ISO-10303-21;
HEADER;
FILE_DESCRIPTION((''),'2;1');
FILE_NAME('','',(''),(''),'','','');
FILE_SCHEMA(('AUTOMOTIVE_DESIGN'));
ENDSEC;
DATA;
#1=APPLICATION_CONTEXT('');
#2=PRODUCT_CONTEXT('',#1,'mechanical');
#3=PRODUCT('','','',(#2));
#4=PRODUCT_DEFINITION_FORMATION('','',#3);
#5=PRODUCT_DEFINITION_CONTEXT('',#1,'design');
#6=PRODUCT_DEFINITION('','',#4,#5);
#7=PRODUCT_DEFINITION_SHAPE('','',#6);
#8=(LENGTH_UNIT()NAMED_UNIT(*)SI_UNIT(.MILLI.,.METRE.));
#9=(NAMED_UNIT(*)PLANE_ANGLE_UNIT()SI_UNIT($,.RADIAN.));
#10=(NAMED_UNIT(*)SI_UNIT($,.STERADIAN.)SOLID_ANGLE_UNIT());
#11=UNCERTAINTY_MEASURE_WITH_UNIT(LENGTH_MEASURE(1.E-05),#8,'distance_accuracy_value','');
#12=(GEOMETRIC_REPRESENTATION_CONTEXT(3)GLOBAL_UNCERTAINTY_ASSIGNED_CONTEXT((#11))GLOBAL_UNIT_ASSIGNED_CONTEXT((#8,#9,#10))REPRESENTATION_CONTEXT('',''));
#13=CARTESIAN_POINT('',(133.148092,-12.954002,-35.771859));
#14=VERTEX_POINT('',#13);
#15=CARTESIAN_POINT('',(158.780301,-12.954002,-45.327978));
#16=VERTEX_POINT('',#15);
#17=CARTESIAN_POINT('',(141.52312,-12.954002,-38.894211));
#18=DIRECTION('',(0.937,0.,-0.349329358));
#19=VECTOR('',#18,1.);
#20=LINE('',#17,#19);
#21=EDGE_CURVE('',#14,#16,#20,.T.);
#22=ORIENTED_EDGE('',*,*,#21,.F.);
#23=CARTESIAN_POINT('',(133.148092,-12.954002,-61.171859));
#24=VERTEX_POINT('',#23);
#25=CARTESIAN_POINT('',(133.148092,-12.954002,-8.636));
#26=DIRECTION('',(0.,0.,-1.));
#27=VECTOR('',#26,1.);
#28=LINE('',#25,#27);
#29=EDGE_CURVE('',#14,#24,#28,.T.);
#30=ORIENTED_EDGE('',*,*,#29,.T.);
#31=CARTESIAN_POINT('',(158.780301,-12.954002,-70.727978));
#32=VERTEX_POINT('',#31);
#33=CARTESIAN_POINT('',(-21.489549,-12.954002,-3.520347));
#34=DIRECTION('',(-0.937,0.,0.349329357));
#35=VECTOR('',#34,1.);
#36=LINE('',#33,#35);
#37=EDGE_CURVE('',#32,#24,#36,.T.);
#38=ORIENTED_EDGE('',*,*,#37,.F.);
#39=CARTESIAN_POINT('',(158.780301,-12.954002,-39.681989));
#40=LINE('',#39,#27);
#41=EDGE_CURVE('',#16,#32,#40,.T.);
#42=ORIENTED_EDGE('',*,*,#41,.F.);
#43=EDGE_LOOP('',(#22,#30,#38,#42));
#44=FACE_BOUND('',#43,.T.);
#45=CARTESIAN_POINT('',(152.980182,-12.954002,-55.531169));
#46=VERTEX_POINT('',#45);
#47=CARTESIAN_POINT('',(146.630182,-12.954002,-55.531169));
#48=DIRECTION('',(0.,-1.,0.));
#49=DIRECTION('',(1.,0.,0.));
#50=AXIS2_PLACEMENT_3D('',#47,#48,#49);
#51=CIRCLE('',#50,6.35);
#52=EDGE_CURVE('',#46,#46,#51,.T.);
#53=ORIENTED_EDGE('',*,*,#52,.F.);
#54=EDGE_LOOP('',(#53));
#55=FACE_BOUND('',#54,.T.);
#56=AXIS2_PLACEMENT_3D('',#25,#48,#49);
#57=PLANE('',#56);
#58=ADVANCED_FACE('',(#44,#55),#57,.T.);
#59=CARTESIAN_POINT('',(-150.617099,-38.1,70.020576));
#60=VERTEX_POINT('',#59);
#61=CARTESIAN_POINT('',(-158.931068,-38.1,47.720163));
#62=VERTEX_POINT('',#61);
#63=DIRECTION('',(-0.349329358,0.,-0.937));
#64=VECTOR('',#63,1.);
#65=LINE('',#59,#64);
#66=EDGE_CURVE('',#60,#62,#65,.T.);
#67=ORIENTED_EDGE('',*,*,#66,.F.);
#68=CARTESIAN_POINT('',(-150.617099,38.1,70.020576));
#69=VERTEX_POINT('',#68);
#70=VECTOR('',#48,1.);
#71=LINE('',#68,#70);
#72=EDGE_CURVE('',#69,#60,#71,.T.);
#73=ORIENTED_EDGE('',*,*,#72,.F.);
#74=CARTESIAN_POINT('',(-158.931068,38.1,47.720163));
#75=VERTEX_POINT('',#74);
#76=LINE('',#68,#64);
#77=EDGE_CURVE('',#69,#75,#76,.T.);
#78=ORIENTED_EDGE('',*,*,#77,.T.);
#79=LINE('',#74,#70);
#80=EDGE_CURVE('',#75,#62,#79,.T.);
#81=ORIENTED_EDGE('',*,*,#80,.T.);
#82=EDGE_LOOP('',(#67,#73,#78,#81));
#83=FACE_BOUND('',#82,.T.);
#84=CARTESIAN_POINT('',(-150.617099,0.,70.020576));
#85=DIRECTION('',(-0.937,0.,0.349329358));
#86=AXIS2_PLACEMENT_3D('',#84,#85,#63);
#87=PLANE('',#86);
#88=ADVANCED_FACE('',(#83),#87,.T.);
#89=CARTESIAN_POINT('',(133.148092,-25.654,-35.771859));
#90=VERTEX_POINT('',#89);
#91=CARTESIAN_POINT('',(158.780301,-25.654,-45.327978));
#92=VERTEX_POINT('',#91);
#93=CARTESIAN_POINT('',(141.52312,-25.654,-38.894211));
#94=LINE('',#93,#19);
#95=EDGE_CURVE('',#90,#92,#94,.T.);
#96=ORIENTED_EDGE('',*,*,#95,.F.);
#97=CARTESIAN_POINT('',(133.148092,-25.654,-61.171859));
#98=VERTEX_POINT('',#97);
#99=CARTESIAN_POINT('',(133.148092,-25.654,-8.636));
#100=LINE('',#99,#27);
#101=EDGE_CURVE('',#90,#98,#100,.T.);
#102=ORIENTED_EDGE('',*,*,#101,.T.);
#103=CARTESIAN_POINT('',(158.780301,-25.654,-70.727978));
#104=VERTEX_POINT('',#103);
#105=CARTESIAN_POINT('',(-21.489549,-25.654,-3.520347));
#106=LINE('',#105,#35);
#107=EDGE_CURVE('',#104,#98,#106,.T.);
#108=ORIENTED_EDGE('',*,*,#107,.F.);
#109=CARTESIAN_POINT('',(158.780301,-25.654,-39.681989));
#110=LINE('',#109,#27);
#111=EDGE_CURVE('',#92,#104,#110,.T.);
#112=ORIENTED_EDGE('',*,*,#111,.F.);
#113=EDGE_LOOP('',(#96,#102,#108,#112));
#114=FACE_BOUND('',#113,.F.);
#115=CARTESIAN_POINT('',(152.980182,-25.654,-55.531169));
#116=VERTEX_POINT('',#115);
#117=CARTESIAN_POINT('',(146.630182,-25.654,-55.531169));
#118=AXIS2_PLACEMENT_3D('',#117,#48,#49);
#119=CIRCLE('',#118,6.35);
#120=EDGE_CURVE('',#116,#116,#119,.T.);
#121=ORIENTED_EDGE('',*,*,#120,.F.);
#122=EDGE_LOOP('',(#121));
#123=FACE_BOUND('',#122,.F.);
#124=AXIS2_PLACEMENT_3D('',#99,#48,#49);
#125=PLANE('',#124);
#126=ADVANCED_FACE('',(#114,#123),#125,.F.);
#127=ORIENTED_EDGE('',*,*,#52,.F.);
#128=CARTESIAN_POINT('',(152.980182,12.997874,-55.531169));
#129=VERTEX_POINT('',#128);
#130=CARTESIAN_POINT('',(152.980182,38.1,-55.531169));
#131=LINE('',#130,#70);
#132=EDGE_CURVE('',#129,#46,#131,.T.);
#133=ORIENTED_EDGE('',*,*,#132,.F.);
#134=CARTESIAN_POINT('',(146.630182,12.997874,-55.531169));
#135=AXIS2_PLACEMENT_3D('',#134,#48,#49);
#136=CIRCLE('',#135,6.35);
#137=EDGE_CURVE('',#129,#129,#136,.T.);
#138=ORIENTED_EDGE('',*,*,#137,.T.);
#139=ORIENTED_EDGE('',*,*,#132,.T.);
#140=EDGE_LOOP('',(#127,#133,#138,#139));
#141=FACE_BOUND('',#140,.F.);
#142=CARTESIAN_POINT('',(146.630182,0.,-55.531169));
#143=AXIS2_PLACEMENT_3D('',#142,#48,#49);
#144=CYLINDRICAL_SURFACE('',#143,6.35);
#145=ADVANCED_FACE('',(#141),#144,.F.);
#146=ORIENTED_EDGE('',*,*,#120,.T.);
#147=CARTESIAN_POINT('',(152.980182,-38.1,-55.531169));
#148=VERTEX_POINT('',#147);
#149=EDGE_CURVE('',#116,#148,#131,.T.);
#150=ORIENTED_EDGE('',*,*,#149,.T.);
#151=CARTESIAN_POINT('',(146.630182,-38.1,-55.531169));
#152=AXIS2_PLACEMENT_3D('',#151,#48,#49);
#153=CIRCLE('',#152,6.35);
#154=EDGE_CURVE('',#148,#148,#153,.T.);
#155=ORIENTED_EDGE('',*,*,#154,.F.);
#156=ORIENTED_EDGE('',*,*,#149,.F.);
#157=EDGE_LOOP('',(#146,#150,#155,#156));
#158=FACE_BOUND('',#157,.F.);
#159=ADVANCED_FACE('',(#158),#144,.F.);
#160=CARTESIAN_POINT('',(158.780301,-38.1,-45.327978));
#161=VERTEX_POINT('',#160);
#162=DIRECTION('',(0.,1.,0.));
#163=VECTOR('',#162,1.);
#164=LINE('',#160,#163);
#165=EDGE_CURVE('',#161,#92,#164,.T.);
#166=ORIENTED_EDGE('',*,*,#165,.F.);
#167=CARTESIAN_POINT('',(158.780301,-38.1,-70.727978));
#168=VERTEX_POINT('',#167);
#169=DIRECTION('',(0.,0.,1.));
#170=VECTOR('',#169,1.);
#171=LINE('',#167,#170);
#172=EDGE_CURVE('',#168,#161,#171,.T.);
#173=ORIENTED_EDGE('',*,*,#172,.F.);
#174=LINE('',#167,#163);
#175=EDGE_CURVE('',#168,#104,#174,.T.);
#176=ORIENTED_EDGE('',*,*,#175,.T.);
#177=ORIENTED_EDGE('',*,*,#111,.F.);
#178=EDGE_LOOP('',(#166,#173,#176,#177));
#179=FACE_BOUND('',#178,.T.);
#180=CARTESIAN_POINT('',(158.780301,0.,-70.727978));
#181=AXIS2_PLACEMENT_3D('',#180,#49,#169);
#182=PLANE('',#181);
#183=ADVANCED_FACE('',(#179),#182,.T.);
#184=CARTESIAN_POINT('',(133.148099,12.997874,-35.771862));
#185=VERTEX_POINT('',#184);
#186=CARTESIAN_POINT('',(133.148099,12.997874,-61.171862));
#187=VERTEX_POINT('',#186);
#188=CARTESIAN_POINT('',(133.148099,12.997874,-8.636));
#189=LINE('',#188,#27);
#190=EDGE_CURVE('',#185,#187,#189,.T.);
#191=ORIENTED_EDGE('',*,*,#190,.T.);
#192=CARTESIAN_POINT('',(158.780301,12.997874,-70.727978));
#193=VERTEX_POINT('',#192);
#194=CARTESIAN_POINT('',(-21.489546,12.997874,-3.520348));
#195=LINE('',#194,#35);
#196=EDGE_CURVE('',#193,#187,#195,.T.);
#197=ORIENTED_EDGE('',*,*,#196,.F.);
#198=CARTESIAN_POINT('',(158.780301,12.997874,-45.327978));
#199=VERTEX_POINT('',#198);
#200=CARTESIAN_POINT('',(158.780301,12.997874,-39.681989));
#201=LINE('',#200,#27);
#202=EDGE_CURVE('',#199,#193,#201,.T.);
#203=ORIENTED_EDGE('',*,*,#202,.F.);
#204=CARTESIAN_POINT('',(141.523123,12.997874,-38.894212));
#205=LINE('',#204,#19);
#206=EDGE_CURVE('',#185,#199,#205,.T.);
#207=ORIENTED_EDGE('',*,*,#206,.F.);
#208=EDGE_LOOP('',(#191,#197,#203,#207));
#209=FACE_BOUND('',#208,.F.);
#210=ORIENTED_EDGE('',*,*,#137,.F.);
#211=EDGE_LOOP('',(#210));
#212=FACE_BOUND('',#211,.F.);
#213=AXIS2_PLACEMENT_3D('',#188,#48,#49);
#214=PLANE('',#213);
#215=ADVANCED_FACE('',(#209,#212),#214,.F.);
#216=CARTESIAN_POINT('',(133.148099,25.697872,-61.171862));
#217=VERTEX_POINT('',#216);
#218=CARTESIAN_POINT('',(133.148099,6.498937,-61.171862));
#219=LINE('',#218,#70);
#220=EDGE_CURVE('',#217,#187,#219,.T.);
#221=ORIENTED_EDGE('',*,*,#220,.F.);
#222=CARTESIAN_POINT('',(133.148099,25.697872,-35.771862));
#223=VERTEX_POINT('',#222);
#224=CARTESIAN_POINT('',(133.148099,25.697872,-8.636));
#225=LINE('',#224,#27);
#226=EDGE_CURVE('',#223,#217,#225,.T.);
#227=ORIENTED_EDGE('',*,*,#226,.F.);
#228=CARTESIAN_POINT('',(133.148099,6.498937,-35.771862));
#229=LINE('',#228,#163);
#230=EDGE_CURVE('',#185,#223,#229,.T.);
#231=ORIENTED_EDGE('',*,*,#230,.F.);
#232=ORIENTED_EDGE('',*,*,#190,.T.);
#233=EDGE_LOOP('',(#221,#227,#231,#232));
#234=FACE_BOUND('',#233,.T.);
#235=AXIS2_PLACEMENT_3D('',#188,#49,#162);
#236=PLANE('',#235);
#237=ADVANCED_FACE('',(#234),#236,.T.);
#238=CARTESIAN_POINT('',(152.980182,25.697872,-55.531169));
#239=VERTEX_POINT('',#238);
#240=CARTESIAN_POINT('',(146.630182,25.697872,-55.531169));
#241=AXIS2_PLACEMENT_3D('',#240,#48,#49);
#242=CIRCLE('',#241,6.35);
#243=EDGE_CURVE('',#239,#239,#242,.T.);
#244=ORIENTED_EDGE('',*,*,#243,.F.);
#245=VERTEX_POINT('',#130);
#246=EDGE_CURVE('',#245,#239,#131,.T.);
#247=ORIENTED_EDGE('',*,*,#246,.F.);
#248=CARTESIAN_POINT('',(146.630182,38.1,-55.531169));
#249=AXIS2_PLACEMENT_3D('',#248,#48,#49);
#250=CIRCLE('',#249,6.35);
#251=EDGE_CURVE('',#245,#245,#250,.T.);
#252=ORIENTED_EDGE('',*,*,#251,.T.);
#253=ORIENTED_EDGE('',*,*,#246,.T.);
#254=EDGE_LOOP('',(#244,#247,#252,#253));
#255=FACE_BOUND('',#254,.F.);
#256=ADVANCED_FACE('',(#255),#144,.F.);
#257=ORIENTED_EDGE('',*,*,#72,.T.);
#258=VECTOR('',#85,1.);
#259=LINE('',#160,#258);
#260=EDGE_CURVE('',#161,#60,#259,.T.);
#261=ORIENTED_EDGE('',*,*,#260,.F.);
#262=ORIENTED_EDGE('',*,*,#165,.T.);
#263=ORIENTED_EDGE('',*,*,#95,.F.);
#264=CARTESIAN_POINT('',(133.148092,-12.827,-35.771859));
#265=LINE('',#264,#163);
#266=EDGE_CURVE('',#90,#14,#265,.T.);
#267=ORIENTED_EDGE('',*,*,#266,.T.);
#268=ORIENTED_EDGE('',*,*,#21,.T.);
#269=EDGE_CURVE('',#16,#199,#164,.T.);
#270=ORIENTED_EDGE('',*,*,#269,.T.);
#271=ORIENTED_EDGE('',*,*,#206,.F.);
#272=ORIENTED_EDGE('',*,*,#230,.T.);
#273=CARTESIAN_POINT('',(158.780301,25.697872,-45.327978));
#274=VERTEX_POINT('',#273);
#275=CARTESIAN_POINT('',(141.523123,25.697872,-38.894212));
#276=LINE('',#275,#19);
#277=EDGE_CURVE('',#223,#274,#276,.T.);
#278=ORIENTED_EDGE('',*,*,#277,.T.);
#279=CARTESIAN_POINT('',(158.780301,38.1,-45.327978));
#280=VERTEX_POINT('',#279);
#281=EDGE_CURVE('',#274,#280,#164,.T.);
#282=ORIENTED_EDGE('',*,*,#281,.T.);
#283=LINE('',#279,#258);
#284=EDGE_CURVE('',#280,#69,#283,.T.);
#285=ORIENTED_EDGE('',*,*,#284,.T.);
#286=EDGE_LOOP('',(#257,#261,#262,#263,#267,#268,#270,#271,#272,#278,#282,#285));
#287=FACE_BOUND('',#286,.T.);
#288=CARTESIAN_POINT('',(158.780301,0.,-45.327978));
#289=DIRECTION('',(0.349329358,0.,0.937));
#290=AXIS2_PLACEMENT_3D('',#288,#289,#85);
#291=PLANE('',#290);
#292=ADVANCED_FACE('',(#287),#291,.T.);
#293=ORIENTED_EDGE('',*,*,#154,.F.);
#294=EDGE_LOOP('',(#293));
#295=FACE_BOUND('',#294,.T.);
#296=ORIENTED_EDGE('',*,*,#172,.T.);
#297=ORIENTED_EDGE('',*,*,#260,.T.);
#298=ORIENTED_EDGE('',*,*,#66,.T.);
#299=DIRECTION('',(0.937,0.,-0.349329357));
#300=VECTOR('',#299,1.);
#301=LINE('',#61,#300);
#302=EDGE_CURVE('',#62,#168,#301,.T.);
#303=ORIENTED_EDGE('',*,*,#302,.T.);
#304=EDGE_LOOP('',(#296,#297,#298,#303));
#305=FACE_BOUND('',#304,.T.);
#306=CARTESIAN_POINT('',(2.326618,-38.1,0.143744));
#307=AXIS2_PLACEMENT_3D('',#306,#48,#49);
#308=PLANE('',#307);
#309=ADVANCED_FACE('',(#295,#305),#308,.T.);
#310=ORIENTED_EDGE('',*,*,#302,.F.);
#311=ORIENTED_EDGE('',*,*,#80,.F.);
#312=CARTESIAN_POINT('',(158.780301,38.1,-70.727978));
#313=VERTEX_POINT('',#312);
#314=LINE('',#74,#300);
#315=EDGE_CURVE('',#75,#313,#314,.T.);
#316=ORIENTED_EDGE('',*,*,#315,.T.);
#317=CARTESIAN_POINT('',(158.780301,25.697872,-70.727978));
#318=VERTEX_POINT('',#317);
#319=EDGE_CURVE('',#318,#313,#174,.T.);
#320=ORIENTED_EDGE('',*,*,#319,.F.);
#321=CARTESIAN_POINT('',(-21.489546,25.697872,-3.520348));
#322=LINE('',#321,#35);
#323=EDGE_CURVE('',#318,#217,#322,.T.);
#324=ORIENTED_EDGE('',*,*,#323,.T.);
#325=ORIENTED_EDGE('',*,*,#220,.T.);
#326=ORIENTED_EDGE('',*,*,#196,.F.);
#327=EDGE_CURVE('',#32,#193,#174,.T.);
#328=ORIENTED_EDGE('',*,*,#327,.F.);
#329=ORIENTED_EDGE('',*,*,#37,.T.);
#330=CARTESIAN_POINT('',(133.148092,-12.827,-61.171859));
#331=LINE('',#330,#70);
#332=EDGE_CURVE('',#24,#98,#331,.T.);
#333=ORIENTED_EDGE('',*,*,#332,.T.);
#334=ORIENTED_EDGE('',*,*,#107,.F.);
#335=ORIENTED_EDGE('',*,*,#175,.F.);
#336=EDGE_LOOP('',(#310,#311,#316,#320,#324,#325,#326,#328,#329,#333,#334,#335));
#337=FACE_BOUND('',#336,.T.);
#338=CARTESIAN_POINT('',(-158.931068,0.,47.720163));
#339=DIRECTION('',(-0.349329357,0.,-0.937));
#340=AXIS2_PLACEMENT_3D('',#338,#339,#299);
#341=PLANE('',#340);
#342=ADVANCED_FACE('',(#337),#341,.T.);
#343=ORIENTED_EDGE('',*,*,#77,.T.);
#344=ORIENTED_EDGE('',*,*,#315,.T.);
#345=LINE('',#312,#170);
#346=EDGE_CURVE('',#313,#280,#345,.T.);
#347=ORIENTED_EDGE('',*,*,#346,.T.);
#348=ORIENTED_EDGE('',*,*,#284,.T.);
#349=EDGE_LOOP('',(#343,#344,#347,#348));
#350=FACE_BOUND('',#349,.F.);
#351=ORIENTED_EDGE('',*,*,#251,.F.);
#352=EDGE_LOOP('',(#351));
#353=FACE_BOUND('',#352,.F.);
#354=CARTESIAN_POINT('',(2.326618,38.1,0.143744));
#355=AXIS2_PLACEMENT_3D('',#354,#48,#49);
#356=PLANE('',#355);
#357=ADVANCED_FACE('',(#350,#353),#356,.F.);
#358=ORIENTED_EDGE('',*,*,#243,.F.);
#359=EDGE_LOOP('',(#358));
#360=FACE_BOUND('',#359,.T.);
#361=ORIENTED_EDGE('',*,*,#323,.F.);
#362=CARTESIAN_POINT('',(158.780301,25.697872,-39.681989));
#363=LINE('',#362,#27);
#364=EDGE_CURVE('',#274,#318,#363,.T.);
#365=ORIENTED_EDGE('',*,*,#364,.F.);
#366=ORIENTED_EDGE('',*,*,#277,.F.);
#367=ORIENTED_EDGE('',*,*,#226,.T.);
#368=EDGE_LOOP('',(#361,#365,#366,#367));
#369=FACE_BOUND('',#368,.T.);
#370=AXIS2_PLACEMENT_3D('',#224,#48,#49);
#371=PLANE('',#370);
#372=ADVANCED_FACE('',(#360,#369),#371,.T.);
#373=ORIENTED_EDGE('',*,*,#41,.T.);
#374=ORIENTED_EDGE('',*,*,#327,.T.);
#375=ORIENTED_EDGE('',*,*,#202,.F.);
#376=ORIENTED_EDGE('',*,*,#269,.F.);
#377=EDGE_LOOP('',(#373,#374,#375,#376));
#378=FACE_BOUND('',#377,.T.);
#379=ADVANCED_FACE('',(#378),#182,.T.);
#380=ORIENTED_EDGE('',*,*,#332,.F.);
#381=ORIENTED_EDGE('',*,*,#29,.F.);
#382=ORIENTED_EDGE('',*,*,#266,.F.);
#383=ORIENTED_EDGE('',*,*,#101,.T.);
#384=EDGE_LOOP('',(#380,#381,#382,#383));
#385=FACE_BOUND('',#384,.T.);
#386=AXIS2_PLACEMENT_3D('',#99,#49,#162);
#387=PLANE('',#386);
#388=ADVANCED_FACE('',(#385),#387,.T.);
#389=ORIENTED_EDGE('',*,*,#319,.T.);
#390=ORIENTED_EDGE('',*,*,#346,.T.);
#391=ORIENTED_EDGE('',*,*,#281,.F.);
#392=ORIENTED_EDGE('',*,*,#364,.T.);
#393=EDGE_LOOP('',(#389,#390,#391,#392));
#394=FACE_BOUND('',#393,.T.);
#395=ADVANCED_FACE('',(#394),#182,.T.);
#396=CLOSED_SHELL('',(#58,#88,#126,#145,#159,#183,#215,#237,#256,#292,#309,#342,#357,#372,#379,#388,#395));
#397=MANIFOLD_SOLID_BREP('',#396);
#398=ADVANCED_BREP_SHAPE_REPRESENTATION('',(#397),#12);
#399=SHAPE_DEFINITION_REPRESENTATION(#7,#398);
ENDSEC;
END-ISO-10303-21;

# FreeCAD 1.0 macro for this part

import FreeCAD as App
import Part
import Sketcher

V = App.Vector
Q = App.Units.Quantity


def add_polygon(sketch, points):
    """Adds a closed chain of lines whose ends are joined by coincident constraints."""
    first, n = sketch.GeometryCount, len(points)
    for a, b in zip(points, points[1:] + points[:1]):
        sketch.addGeometry(Part.LineSegment(App.Vector(*a, 0), App.Vector(*b, 0)), False)
    for i in range(n):
        sketch.addConstraint(Sketcher.Constraint("Coincident", first + i, 2, first + (i + 1) % n, 1))

doc = App.newDocument("Part")
body = doc.addObject("PartDesign::Body", "Body")

sketch1 = body.newObject("Sketcher::SketchObject", "Sketch")
sketch1.AttachmentSupport = (doc.getObject("XZ_Plane"), [""])
sketch1.MapMode = "FlatFace"
add_polygon(sketch1, [(190, -37), (-119, 79), (-127, 56), (190, -62)])
sketch1.addConstraint([
    Sketcher.Constraint("Vertical", 3),
    Sketcher.Constraint("Perpendicular", 0, 1),
    Sketcher.Constraint("Perpendicular", 1, 2),
    Sketcher.Constraint("DistanceY", 3, 1, 3, 2, Q("1 in")),
    Sketcher.Constraint("Distance", 0, Q("13 in")),
    Sketcher.Constraint("Distance", 1, Q("0.937 in")),
    Sketcher.Constraint("DistanceX", 0, 2, -1, 1, Q("119.121099 mm")),
    Sketcher.Constraint("DistanceY", -1, 1, 0, 2, Q("78.656576 mm")),
])
pad1 = body.newObject("PartDesign::Pad", "Pad")
pad1.Profile = sketch1
pad1.Length = Q("3 in")
pad1.Midplane = True

sketch2 = body.newObject("Sketcher::SketchObject", "Sketch001")
sketch2.AttachmentSupport = (doc.getObject("XY_Plane"), [""])
sketch2.MapMode = "FlatFace"
add_polygon(sketch2, [(165, 26), (165, 13), (195, 13), (195, 26)])
add_polygon(sketch2, [(165, -13), (165, -26), (195, -26), (195, -13)])
sketch2.addConstraint([
    Sketcher.Constraint("Vertical", 0),
    Sketcher.Constraint("Horizontal", 1),
    Sketcher.Constraint("Vertical", 2),
    Sketcher.Constraint("Horizontal", 3),
    Sketcher.Constraint("Vertical", 4),
    Sketcher.Constraint("Horizontal", 5),
    Sketcher.Constraint("Vertical", 6),
    Sketcher.Constraint("Horizontal", 7),
    Sketcher.Constraint("Equal", 3, 5),
    Sketcher.Constraint("Equal", 2, 4),
    Sketcher.Constraint("DistanceX", 1, 1, 1, 2, Q("1.2 in")),
    Sketcher.Constraint("DistanceY", 0, 2, 0, 1, Q("0.4999999 in")),
    Sketcher.Constraint("DistanceY", 4, 2, -1, 1, Q("1.01 in")),
    Sketcher.Constraint("DistanceX", -1, 1, 0, 2, Q("164.644099 mm")),
    Sketcher.Constraint("DistanceY", -1, 1, 2, 2, Q("25.697872 mm")),
    Sketcher.Constraint("DistanceX", -1, 1, 4, 2, Q("164.644092 mm")),
])
pocket1 = body.newObject("PartDesign::Pocket", "Pocket")
pocket1.Profile = sketch2
pocket1.Length = Q("2.87 in")

sketch3 = body.newObject("Sketcher::SketchObject", "Sketch002")
sketch3.AttachmentSupport = (doc.getObject("XZ_Plane"), [""])
sketch3.MapMode = "FlatFace"
sketch3.addGeometry(Part.Circle(V(178, -47, 0), V(0, 0, 1), 6), False)
sketch3.addConstraint([
    Sketcher.Constraint("Diameter", 0, Q("0.5 in")),
    Sketcher.Constraint("DistanceX", -1, 1, 0, 3, Q("178.126182 mm")),
    Sketcher.Constraint("DistanceY", 0, 3, -1, 1, Q("46.895169 mm")),
])
pocket2 = body.newObject("PartDesign::Pocket", "Pocket001")
pocket2.Profile = sketch3
pocket2.Length = Q("3 in")
pocket2.Midplane = True
body2 = doc.addObject("PartDesign::Body", "Body001")
doc.recompute()

body.Placement = App.Placement(V(-31.496, 0, -8.636), App.Rotation(V(0, 0, 1), 0))
boolean = body2.newObject("PartDesign::Boolean", "Boolean")
boolean.Type = "Fuse"
boolean.addObjects([body])

doc.recompute()
